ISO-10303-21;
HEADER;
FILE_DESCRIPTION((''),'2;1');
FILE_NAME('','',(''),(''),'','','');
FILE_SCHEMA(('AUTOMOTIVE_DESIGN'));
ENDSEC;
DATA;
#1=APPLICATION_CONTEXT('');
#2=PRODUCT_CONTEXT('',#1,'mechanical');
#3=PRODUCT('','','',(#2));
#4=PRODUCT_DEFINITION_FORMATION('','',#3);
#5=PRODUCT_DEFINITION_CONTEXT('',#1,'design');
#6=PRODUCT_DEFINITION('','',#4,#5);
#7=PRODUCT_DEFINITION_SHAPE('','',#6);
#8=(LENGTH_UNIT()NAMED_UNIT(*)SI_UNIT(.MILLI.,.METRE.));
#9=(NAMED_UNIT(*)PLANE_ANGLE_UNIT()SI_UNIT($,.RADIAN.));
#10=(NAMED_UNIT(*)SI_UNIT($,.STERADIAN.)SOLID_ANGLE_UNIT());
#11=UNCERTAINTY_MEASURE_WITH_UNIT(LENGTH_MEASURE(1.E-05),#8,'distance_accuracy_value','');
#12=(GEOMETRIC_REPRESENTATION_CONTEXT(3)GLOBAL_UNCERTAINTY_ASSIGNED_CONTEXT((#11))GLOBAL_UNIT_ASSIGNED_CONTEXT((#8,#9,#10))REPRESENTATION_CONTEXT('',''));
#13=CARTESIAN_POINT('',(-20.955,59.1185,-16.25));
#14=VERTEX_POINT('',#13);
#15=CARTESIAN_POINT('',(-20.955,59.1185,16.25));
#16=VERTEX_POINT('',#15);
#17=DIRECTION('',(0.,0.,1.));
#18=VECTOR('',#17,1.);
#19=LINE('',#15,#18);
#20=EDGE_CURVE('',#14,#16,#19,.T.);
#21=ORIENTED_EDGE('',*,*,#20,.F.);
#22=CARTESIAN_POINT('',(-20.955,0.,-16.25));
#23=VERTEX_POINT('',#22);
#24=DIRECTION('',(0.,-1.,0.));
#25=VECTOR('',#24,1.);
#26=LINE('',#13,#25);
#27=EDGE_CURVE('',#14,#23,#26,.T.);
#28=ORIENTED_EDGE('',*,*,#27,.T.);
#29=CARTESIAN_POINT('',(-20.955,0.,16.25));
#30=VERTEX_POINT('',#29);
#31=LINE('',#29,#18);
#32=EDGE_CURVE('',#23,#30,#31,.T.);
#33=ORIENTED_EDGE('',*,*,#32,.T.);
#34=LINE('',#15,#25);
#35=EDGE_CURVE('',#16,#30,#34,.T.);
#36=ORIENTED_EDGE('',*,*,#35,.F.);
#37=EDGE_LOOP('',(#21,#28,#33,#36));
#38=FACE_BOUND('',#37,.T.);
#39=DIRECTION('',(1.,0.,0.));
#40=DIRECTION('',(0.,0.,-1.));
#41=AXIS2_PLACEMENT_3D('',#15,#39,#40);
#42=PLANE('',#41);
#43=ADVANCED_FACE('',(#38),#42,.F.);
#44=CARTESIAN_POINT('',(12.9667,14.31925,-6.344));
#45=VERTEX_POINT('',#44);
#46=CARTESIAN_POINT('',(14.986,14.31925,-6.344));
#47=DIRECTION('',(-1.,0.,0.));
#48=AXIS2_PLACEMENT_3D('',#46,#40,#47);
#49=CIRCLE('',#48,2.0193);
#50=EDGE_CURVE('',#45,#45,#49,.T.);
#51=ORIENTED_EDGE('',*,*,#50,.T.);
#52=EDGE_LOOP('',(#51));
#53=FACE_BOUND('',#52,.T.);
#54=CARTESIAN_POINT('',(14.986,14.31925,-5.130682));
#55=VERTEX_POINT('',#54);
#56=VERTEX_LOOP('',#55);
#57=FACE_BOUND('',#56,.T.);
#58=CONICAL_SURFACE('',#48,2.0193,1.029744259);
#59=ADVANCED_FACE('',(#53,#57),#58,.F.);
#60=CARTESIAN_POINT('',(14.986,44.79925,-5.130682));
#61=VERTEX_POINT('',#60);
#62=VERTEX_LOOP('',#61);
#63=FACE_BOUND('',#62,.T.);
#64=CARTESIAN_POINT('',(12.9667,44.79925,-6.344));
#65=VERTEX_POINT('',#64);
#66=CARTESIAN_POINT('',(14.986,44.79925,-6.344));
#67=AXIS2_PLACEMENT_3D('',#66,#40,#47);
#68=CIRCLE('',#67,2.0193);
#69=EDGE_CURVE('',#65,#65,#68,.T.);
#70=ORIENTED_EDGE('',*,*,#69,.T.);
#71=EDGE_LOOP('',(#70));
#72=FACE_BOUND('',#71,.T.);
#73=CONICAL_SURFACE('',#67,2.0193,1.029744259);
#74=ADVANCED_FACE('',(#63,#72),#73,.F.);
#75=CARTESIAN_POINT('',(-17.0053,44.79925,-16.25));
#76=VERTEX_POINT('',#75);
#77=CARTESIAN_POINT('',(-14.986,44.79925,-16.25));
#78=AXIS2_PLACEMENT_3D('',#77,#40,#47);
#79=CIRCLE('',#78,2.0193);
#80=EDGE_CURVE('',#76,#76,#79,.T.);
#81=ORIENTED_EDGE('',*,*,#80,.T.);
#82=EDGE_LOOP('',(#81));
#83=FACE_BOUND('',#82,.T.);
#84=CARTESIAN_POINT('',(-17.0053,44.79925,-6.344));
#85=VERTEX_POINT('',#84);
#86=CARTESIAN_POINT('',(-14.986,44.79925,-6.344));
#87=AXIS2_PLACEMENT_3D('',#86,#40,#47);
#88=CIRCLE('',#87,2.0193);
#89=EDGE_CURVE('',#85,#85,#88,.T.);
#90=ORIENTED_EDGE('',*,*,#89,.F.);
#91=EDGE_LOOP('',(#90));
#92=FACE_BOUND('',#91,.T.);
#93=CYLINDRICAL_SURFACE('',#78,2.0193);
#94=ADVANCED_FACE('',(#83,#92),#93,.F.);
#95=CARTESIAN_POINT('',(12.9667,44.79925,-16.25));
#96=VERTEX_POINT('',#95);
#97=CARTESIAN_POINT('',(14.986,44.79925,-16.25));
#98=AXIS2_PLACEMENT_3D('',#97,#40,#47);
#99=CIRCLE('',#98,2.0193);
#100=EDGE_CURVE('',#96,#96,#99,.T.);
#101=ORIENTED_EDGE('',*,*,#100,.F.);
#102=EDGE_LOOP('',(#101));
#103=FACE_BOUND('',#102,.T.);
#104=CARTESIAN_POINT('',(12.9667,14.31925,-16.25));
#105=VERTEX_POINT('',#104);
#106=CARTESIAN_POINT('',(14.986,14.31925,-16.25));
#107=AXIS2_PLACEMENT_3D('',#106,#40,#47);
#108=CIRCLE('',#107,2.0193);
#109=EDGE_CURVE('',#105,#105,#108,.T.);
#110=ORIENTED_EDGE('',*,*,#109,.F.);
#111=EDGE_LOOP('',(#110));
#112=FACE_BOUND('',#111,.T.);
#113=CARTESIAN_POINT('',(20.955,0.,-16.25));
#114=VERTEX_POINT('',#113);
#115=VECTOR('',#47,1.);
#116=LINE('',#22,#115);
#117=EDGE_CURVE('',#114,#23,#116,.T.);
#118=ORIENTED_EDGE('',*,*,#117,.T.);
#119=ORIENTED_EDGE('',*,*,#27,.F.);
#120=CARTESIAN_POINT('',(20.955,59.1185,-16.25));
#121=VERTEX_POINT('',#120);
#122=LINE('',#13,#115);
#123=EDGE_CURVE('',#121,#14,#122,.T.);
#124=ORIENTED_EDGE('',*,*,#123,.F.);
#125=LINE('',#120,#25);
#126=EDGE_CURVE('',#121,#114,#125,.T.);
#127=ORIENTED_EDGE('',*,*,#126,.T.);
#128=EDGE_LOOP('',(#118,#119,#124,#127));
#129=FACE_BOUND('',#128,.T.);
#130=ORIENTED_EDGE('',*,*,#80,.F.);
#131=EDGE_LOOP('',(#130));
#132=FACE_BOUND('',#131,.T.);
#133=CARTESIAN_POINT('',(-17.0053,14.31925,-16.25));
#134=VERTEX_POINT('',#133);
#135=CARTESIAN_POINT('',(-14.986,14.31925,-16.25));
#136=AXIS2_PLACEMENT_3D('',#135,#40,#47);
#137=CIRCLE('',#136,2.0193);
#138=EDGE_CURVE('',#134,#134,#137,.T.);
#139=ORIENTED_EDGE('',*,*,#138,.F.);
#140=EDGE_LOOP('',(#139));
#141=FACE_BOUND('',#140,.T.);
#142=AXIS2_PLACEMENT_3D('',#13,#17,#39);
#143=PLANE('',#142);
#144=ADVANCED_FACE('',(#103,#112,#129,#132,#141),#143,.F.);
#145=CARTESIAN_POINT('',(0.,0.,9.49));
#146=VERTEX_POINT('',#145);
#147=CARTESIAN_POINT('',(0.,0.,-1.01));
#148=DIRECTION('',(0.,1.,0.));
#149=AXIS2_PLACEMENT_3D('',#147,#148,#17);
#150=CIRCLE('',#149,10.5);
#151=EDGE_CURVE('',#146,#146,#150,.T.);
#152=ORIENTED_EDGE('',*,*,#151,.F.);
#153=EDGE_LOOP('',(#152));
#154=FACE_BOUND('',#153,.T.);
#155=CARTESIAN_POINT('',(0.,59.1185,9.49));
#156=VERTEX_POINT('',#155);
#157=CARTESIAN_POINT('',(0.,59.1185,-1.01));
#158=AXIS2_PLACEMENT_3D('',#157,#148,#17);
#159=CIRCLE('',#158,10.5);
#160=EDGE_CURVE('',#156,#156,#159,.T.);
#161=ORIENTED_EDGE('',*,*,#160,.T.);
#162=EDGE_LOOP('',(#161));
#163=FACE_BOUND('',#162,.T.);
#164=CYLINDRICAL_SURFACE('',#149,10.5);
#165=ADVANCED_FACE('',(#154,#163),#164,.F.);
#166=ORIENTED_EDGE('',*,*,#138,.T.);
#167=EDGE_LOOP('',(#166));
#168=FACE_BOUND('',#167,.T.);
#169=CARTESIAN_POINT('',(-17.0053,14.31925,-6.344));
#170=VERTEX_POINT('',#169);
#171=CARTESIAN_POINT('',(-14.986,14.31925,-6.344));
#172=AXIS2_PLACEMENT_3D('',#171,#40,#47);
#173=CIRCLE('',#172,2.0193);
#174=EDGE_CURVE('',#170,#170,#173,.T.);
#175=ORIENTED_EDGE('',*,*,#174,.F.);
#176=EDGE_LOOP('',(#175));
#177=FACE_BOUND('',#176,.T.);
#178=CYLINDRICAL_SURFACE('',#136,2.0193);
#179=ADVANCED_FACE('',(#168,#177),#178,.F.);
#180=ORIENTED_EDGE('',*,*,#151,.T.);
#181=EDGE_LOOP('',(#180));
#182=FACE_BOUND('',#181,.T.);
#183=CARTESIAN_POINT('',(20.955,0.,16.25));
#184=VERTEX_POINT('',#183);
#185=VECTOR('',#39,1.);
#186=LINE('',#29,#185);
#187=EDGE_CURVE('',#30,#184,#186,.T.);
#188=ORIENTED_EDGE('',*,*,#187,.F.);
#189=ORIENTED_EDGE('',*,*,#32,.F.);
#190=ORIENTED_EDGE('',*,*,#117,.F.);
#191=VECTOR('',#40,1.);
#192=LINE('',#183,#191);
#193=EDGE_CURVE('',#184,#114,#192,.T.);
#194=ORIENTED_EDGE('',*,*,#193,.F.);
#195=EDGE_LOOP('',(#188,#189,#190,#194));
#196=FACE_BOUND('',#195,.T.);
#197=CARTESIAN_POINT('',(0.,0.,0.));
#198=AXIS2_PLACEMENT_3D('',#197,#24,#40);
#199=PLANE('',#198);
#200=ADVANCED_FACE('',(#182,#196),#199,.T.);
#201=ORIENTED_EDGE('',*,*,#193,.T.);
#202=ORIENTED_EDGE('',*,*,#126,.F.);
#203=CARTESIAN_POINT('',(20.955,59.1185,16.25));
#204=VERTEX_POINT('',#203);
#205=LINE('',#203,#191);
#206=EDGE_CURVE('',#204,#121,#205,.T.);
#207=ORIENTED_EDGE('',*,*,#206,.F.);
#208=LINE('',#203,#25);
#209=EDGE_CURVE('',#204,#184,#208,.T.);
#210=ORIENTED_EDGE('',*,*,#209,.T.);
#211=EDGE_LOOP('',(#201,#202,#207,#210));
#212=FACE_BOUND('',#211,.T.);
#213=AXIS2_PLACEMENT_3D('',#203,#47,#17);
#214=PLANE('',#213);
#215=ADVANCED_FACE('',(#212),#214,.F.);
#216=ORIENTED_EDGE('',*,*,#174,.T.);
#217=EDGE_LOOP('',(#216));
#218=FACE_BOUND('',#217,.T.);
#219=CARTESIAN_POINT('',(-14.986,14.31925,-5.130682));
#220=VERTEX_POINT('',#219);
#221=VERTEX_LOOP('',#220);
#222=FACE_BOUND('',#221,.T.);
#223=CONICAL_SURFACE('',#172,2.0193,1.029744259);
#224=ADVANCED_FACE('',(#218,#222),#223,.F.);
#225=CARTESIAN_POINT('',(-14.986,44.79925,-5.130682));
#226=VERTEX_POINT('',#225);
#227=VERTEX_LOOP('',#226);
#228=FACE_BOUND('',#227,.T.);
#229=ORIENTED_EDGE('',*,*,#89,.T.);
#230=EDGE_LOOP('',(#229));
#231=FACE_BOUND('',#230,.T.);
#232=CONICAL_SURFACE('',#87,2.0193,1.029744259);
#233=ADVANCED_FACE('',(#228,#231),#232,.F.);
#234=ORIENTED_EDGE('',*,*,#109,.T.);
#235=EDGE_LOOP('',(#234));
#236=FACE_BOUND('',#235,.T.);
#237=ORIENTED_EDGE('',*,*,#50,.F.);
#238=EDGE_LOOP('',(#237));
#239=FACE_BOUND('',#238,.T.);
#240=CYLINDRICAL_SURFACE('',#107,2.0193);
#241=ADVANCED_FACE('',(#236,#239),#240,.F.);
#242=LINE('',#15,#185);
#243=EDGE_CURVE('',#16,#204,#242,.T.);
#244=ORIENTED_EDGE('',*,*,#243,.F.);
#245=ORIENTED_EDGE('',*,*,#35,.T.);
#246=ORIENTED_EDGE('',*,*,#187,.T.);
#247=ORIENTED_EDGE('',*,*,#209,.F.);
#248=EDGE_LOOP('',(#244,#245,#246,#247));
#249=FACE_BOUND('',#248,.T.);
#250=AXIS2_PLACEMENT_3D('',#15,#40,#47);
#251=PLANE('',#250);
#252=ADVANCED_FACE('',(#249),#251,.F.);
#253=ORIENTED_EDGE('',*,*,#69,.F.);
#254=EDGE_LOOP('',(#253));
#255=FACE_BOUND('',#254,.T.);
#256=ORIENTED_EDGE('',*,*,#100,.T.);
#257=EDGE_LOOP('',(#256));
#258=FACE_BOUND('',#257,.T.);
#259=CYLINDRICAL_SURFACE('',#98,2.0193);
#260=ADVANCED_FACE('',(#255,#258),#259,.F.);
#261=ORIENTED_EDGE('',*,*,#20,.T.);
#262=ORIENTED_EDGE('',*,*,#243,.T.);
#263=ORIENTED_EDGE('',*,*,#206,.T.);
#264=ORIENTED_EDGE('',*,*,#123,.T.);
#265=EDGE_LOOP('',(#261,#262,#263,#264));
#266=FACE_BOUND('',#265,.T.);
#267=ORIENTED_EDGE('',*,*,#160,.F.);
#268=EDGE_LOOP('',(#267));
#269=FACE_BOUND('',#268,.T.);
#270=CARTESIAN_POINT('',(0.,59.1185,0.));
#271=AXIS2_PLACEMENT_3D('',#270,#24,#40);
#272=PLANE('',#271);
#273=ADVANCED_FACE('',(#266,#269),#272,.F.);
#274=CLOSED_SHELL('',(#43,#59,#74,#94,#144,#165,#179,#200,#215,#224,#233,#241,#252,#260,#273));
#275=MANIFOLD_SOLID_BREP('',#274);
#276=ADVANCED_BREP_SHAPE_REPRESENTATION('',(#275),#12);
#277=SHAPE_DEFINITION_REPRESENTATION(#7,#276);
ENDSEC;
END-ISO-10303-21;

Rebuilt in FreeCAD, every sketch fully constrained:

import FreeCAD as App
import Part
import Sketcher

V = App.Vector
Q = App.Units.Quantity


def add_polygon(sketch, points):
    """Adds a closed chain of lines whose ends are joined by coincident constraints."""
    first, n = sketch.GeometryCount, len(points)
    for a, b in zip(points, points[1:] + points[:1]):
        sketch.addGeometry(Part.LineSegment(App.Vector(*a, 0), App.Vector(*b, 0)), False)
    for i in range(n):
        sketch.addConstraint(Sketcher.Constraint("Coincident", first + i, 2, first + (i + 1) % n, 1))

doc = App.newDocument("Part")
body = doc.addObject("PartDesign::Body", "Body")

sketch1 = body.newObject("Sketcher::SketchObject", "Sketch")
sketch1.AttachmentSupport = (doc.getObject("XZ_Plane"), [""])
sketch1.MapMode = "FlatFace"
add_polygon(sketch1, [(-20.955, -16.25), (-20.955, 16.25), (20.955, 16.25), (20.955, -16.25)])
sketch1.addConstraint(Sketcher.Constraint("Vertical", 0))
sketch1.addConstraint(Sketcher.Constraint("Horizontal", 1))
sketch1.addConstraint(Sketcher.Constraint("Vertical", 2))
sketch1.addConstraint(Sketcher.Constraint("Horizontal", 3))
sketch1.addConstraint(Sketcher.Constraint("Symmetric", 0, 2, 2, 2, -1, 1))
sketch1.addConstraint(Sketcher.Constraint("DistanceX", 1, 1, 1, 2, Q("1.65 in")))
sketch1.addConstraint(Sketcher.Constraint("DistanceY", 0, 1, 0, 2, Q("32.5 mm")))
pad1 = body.newObject("PartDesign::Pad", "Pad")
pad1.Profile = sketch1
pad1.Length = Q("2.3275 in")
pad1.Reversed = True

sketch2 = body.newObject("Sketcher::SketchObject", "Sketch001")
sketch2.AttachmentSupport = (doc.getObject("XZ_Plane"), [""])
sketch2.MapMode = "FlatFace"
sketch2.AttachmentOffset = App.Placement(V(0, 0, -2.3275 * 25.4), App.Rotation())
sketch2.addGeometry(Part.Circle(V(0, -1.01, 0), V(0, 0, 1), 10.5), False)
sketch2.addConstraint(Sketcher.Constraint("PointOnObject", 0, 3, -2))
sketch2.addConstraint(Sketcher.Constraint("Diameter", 0, Q("21 mm")))
sketch2.addConstraint(Sketcher.Constraint("DistanceY", 0, 3, -1, 1, Q("1.01 mm")))
pocket1 = body.newObject("PartDesign::Pocket", "Pocket")
pocket1.Profile = sketch2
pocket1.Type = "ThroughAll"
pocket1.Reversed = True

sketch3 = body.newObject("Sketcher::SketchObject", "Sketch002")
sketch3.AttachmentSupport = (doc.getObject("XY_Plane"), [""])
sketch3.MapMode = "FlatFace"
sketch3.AttachmentOffset = App.Placement(V(0, 0, -16.25), App.Rotation())
sketch3.addGeometry(Part.Circle(V(14.986, 14.31925, 0), V(0, 0, 1), 2.0193), False)
sketch3.addGeometry(Part.Circle(V(-14.986, 14.31925, 0), V(0, 0, 1), 2.0193), False)
sketch3.addGeometry(Part.Circle(V(-14.986, 44.79925, 0), V(0, 0, 1), 2.0193), False)
sketch3.addGeometry(Part.Circle(V(14.986, 44.79925, 0), V(0, 0, 1), 2.0193), False)
sketch3.addConstraint(Sketcher.Constraint("Equal", 0, 1))
sketch3.addConstraint(Sketcher.Constraint("Equal", 1, 2))
sketch3.addConstraint(Sketcher.Constraint("Equal", 2, 3))
sketch3.addConstraint(Sketcher.Constraint("Symmetric", 0, 3, 1, 3, -2))
sketch3.addConstraint(Sketcher.Constraint("Symmetric", 2, 3, 3, 3, -2))
sketch3.addConstraint(Sketcher.Constraint("Vertical", 1, 3, 2, 3))
sketch3.addConstraint(Sketcher.Constraint("Diameter", 0, Q("0.159 in")))
sketch3.addConstraint(Sketcher.Constraint("DistanceY", 1, 3, 2, 3, Q("1.2 in")))
sketch3.addConstraint(Sketcher.Constraint("DistanceX", -1, 1, 0, 3, Q("0.59 in")))
sketch3.addConstraint(Sketcher.Constraint("DistanceY", -1, 1, 0, 3, Q("14.31925 mm")))
doc.recompute()
hole = body.newObject("PartDesign::Hole", "Hole")
hole.Profile = sketch3
hole.ThreadType = "None"
hole.Diameter = Q("0.159 in")
hole.DepthType = "Dimension"
hole.Depth = Q("0.39 in")
hole.DrillPoint = "Angled"
hole.DrillPointAngle = 118
hole.Reversed = True

doc.recompute()
